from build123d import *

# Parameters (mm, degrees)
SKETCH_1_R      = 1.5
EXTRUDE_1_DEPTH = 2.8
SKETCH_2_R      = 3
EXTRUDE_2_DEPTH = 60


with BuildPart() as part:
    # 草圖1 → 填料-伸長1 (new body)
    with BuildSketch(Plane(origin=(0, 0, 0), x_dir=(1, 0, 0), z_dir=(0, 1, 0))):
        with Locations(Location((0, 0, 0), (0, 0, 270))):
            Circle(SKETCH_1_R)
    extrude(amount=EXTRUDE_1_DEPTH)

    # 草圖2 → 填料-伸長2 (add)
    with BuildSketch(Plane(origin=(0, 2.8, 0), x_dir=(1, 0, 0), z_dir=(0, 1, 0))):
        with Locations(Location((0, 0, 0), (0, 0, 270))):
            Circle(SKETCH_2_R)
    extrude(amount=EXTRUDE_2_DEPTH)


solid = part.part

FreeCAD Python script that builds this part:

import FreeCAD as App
import Part
import Sketcher
Q = App.Units.Quantity

doc = App.newDocument("Part")
params = doc.addObject("Spreadsheet::Sheet", "Params")
for row, (alias, value) in enumerate([
    ("sketch1_diameter", "3 mm"),
    ("pad1_length", "2.8 mm"),
    ("sketch2_diameter", "6 mm"),
    ("pad2_length", "60 mm"),
], start=1):
    params.set(f"A{row}", alias)
    params.set(f"B{row}", "=" + value)
    params.setAlias(f"B{row}", alias)

body = doc.addObject("PartDesign::Body", "Body")

# Sketch on XZ plane
sketch1 = body.newObject("Sketcher::SketchObject", "Sketch")
sketch1.AttachmentSupport = (doc.getObject("XZ_Plane"), [""])
sketch1.MapMode = "FlatFace"
sketch1.addGeometry(Part.Circle(App.Vector(0, 0, 0), App.Vector(0, 0, 1), 1.5), False)
sketch1.addConstraint([
    Sketcher.Constraint("Coincident", 0, 3, -1, 1),
    Sketcher.Constraint("Diameter", 0, Q("3 mm")),
])
sketch1.setExpression("Constraints[1]", "Params.sketch1_diameter")
pad1 = body.newObject("PartDesign::Pad", "Pad")
pad1.Profile = sketch1
pad1.setExpression("Length", "Params.pad1_length")
pad1.Reversed = True

# Sketch on XZ plane
sketch2 = body.newObject("Sketcher::SketchObject", "Sketch001")
sketch2.AttachmentSupport = (doc.getObject("XZ_Plane"), [""])
sketch2.MapMode = "FlatFace"
sketch2.AttachmentOffset = App.Placement(App.Vector(0, 0, -2.8), App.Rotation())
sketch2.addGeometry(Part.Circle(App.Vector(0, 0, 0), App.Vector(0, 0, 1), 3), False)
sketch2.addConstraint([
    Sketcher.Constraint("Coincident", 0, 3, -1, 1),
    Sketcher.Constraint("Diameter", 0, Q("6 mm")),
])
sketch2.setExpression("Constraints[1]", "Params.sketch2_diameter")
pad2 = body.newObject("PartDesign::Pad", "Pad001")
pad2.Profile = sketch2
pad2.setExpression("Length", "Params.pad2_length")
pad2.Reversed = True

doc.recompute()
